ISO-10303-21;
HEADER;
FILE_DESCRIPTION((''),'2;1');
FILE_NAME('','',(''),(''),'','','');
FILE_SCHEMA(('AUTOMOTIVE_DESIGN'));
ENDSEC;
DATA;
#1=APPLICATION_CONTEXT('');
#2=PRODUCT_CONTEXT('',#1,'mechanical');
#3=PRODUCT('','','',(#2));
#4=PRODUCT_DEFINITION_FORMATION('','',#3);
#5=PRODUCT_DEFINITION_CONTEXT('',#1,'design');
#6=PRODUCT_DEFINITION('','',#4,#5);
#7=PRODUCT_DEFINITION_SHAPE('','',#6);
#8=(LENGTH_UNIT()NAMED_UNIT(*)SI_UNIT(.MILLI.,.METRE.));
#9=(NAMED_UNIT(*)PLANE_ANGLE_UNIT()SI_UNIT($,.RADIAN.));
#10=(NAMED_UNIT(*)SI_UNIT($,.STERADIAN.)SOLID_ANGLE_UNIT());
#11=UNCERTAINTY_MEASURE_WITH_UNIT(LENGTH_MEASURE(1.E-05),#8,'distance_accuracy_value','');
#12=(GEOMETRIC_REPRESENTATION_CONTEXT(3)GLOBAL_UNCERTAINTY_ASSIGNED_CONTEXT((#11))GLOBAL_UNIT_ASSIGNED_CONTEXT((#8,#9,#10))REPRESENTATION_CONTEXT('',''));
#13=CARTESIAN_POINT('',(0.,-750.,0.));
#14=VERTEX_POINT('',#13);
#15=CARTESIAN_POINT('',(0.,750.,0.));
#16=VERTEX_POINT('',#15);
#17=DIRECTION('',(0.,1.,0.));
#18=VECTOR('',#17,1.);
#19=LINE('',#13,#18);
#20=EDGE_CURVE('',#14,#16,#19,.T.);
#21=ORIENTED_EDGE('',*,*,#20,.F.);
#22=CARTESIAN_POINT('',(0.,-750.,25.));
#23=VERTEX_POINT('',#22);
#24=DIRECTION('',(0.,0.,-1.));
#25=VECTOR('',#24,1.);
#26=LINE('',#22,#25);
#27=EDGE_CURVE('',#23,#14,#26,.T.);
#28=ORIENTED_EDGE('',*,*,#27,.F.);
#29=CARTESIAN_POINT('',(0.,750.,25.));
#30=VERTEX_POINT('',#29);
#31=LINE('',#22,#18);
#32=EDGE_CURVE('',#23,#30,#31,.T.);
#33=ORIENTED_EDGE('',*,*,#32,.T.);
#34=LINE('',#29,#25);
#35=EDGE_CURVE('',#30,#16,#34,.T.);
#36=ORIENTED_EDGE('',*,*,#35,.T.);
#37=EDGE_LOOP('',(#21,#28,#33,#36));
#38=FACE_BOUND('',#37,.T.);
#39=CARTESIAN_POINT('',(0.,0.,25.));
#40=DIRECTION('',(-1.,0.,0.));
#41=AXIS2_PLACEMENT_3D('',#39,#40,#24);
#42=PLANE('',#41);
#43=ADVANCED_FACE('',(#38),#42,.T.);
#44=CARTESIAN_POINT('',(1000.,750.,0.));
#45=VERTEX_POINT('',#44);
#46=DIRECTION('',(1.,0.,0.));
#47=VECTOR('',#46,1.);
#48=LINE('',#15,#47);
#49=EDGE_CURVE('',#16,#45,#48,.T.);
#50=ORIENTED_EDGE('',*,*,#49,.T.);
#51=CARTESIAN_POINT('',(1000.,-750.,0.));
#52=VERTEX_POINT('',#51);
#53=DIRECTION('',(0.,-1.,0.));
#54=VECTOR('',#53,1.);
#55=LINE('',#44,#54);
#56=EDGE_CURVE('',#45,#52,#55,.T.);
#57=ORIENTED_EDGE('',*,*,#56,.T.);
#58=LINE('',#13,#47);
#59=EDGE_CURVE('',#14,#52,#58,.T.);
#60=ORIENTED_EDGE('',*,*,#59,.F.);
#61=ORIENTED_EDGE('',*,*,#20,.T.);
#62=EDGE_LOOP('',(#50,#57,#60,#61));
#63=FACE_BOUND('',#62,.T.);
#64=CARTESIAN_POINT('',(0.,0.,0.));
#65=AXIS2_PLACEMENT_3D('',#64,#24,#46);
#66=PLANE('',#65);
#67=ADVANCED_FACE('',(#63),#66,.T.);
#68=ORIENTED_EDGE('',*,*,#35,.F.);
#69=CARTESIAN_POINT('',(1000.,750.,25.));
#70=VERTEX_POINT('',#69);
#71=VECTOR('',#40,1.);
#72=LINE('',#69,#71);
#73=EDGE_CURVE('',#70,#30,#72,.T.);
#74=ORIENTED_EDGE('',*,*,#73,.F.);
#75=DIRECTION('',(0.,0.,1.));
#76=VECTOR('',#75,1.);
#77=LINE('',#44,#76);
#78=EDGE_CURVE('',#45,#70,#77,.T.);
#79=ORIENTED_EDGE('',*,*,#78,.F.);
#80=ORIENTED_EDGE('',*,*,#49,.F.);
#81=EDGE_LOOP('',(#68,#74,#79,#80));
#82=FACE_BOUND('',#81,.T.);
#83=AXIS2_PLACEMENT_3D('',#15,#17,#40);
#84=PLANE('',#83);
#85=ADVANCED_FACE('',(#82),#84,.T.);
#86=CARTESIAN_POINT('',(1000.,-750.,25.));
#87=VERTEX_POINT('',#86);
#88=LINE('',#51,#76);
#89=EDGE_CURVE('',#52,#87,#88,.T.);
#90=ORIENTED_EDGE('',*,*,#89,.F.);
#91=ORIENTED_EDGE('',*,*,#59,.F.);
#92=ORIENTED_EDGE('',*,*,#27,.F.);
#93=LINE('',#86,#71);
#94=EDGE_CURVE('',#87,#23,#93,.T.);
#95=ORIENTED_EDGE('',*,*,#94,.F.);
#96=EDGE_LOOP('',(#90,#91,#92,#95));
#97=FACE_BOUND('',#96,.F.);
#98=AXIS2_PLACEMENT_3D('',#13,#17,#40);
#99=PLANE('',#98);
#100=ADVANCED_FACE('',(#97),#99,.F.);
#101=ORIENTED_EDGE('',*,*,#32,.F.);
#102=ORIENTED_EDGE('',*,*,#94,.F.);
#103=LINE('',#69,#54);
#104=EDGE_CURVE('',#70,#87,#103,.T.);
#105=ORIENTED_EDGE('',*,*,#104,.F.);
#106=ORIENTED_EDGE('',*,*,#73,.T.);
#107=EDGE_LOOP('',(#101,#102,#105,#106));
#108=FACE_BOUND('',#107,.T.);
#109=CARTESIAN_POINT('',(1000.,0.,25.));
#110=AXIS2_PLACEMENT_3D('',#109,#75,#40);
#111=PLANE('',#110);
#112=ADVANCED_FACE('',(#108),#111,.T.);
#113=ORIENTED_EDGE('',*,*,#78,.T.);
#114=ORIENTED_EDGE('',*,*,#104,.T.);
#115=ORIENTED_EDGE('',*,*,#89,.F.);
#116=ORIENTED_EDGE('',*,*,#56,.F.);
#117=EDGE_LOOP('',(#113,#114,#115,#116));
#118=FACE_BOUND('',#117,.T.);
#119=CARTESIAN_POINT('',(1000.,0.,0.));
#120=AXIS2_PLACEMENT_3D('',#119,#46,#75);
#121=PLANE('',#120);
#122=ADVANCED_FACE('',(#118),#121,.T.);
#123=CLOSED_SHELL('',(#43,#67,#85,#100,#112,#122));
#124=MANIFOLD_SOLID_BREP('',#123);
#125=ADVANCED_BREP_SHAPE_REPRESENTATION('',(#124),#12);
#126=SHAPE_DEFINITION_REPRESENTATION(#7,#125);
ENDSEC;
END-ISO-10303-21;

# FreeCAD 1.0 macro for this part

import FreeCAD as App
import Part
import Sketcher

V = App.Vector
Q = App.Units.Quantity


def add_polygon(sketch, points):
    """Adds a closed chain of lines whose ends are joined by coincident constraints."""
    first, n = sketch.GeometryCount, len(points)
    for a, b in zip(points, points[1:] + points[:1]):
        sketch.addGeometry(Part.LineSegment(App.Vector(*a, 0), App.Vector(*b, 0)), False)
    for i in range(n):
        sketch.addConstraint(Sketcher.Constraint("Coincident", first + i, 2, first + (i + 1) % n, 1))

doc = App.newDocument("Part")
body = doc.addObject("PartDesign::Body", "Body")

sketch1 = body.newObject("Sketcher::SketchObject", "Sketch")
sketch1.AttachmentSupport = (doc.getObject("XZ_Plane"), [""])
sketch1.MapMode = "FlatFace"
add_polygon(sketch1, [(1000, 0), (0, 0), (0, 25), (1000, 25)])
sketch1.addConstraint(Sketcher.Constraint("Horizontal", 0))
sketch1.addConstraint(Sketcher.Constraint("Vertical", 1))
sketch1.addConstraint(Sketcher.Constraint("Horizontal", 2))
sketch1.addConstraint(Sketcher.Constraint("Vertical", 3))
sketch1.addConstraint(Sketcher.Constraint("Coincident", 0, 2, -1, 1))
sketch1.addConstraint(Sketcher.Constraint("DistanceX", 0, 2, 0, 1, Q("1000 mm")))
sketch1.addConstraint(Sketcher.Constraint("DistanceY", 1, 1, 1, 2, Q("25 mm")))
pad1 = body.newObject("PartDesign::Pad", "Pad")
pad1.Profile = sketch1
pad1.Length = 1500
pad1.Midplane = True

doc.recompute()
